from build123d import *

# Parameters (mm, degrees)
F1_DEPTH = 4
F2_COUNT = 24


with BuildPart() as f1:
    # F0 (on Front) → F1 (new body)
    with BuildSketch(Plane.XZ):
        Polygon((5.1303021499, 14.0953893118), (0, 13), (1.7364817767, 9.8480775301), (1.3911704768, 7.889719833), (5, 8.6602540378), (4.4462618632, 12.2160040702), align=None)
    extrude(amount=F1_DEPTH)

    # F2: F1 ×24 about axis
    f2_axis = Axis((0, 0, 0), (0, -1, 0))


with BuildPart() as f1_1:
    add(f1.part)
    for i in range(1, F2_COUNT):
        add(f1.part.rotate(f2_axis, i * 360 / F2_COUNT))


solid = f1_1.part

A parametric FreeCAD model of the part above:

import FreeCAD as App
import Part
import Sketcher
from FreeCAD import Vector
Q = App.Units.Quantity


def add_polygon(sketch, points):
    """Adds a closed chain of lines whose ends are joined by coincident constraints."""
    first, n = sketch.GeometryCount, len(points)
    for a, b in zip(points, points[1:] + points[:1]):
        sketch.addGeometry(Part.LineSegment(App.Vector(*a, 0), App.Vector(*b, 0)), False)
    for i in range(n):
        sketch.addConstraint(Sketcher.Constraint("Coincident", first + i, 2, first + (i + 1) % n, 1))

doc = App.newDocument("Part")
params = doc.addObject("Spreadsheet::Sheet", "Params")
for row, (alias, value) in enumerate([
    ("sketch1_length", "2 mm"),
    ("pad1_length", "4 mm"),
], start=1):
    params.set(f"A{row}", alias)
    params.set(f"B{row}", "=" + value)
    params.setAlias(f"B{row}", alias)

body = doc.addObject("PartDesign::Body", "Body")

# Sketch on XZ plane
sketch1 = doc.addObject("Sketcher::SketchObject", "Sketch")
body.addObject(sketch1)
sketch1.AttachmentSupport = (doc.XZ_Plane, [""])
sketch1.MapMode = "FlatFace"
add_polygon(sketch1, [(5.1, 14.1), (0, 13), (1.7, 9.8), (1.4, 7.9), (5, 8.7), (4.4, 12.2)])  # lines 0-5
sketch1.addConstraint([
    Sketcher.Constraint("PointOnObject", 0, 2, -2),
    Sketcher.Constraint("Parallel", 0, 3),
    Sketcher.Constraint("Equal", 1, 4),
    Sketcher.Constraint("Angle", 2, Q("-100 deg")),
    Sketcher.Constraint("Angle", 5, Q("70 deg")),
    Sketcher.Constraint("Distance", 5, Q("2 mm")),
    Sketcher.Constraint("DistanceY", -1, 1, 0, 2, Q("13 mm")),
    Sketcher.Constraint("DistanceX", -1, 1, 3, 2, Q("5 mm")),
    Sketcher.Constraint("Distance", 0, Q("5.245939 mm")),
    Sketcher.Constraint("Distance", 1, Q("3.598609 mm")),
    Sketcher.Constraint("Distance", 2, Q("1.988569 mm")),
    Sketcher.Constraint("DistanceX", -1, 1, 1, 2, Q("1.736482 mm")),
])
sketch1.setExpression("Constraints[11]", "Params.sketch1_length")
pad1 = doc.addObject("PartDesign::Pad", "Pad")
body.addObject(pad1)
pad1.Profile = sketch1
pad1.setExpression("Length", "Params.pad1_length")
body2 = doc.addObject("PartDesign::Body", "Body001")
doc.recompute()

body2.BaseFeature = body
doc.recompute()

body3 = doc.addObject("PartDesign::Body", "Body002")
body3.BaseFeature = body
body3.Placement = App.Placement(Vector(0, 0, 0), App.Rotation(Vector(0, -1, 0), 15))
boolean = doc.addObject("PartDesign::Boolean", "Boolean")
body2.addObject(boolean)
boolean.Type = "Fuse"
boolean.addObjects([body3])
doc.recompute()

body4 = doc.addObject("PartDesign::Body", "Body003")
body4.BaseFeature = body
body4.Placement = App.Placement(Vector(0, 0, 0), App.Rotation(Vector(0, -1, 0), 30))
boolean2 = doc.addObject("PartDesign::Boolean", "Boolean001")
body2.addObject(boolean2)
boolean2.Type = "Fuse"
boolean2.addObjects([body4])
doc.recompute()

body5 = doc.addObject("PartDesign::Body", "Body004")
body5.BaseFeature = body
body5.Placement = App.Placement(Vector(0, 0, 0), App.Rotation(Vector(0, -1, 0), 45))
boolean3 = doc.addObject("PartDesign::Boolean", "Boolean002")
body2.addObject(boolean3)
boolean3.Type = "Fuse"
boolean3.addObjects([body5])
doc.recompute()

body6 = doc.addObject("PartDesign::Body", "Body005")
body6.BaseFeature = body
body6.Placement = App.Placement(Vector(0, 0, 0), App.Rotation(Vector(0, -1, 0), 60))
boolean4 = doc.addObject("PartDesign::Boolean", "Boolean003")
body2.addObject(boolean4)
boolean4.Type = "Fuse"
boolean4.addObjects([body6])
doc.recompute()

body7 = doc.addObject("PartDesign::Body", "Body006")
body7.BaseFeature = body
body7.Placement = App.Placement(Vector(0, 0, 0), App.Rotation(Vector(0, -1, 0), 75))
boolean5 = doc.addObject("PartDesign::Boolean", "Boolean004")
body2.addObject(boolean5)
boolean5.Type = "Fuse"
boolean5.addObjects([body7])
doc.recompute()

body8 = doc.addObject("PartDesign::Body", "Body007")
body8.BaseFeature = body
body8.Placement = App.Placement(Vector(0, 0, 0), App.Rotation(Vector(0, -1, 0), 90))
boolean6 = doc.addObject("PartDesign::Boolean", "Boolean005")
body2.addObject(boolean6)
boolean6.Type = "Fuse"
boolean6.addObjects([body8])
doc.recompute()

body9 = doc.addObject("PartDesign::Body", "Body008")
body9.BaseFeature = body
body9.Placement = App.Placement(Vector(0, 0, 0), App.Rotation(Vector(0, -1, 0), 105))
boolean7 = doc.addObject("PartDesign::Boolean", "Boolean006")
body2.addObject(boolean7)
boolean7.Type = "Fuse"
boolean7.addObjects([body9])
doc.recompute()

body10 = doc.addObject("PartDesign::Body", "Body009")
body10.BaseFeature = body
body10.Placement = App.Placement(Vector(0, 0, 0), App.Rotation(Vector(0, -1, 0), 120))
boolean8 = doc.addObject("PartDesign::Boolean", "Boolean007")
body2.addObject(boolean8)
boolean8.Type = "Fuse"
boolean8.addObjects([body10])
doc.recompute()

body11 = doc.addObject("PartDesign::Body", "Body010")
body11.BaseFeature = body
body11.Placement = App.Placement(Vector(0, 0, 0), App.Rotation(Vector(0, -1, 0), 135))
boolean9 = doc.addObject("PartDesign::Boolean", "Boolean008")
body2.addObject(boolean9)
boolean9.Type = "Fuse"
boolean9.addObjects([body11])
doc.recompute()

body12 = doc.addObject("PartDesign::Body", "Body011")
body12.BaseFeature = body
body12.Placement = App.Placement(Vector(0, 0, 0), App.Rotation(Vector(0, -1, 0), 150))
boolean10 = doc.addObject("PartDesign::Boolean", "Boolean009")
body2.addObject(boolean10)
boolean10.Type = "Fuse"
boolean10.addObjects([body12])
doc.recompute()

body13 = doc.addObject("PartDesign::Body", "Body012")
body13.BaseFeature = body
body13.Placement = App.Placement(Vector(0, 0, 0), App.Rotation(Vector(0, -1, 0), 165))
boolean11 = doc.addObject("PartDesign::Boolean", "Boolean010")
body2.addObject(boolean11)
boolean11.Type = "Fuse"
boolean11.addObjects([body13])
doc.recompute()

body14 = doc.addObject("PartDesign::Body", "Body013")
body14.BaseFeature = body
body14.Placement = App.Placement(Vector(0, 0, 0), App.Rotation(Vector(0, -1, 0), 180))
boolean12 = doc.addObject("PartDesign::Boolean", "Boolean011")
body2.addObject(boolean12)
boolean12.Type = "Fuse"
boolean12.addObjects([body14])
doc.recompute()

body15 = doc.addObject("PartDesign::Body", "Body014")
body15.BaseFeature = body
body15.Placement = App.Placement(Vector(0, 0, 0), App.Rotation(Vector(0, -1, 0), 195))
boolean13 = doc.addObject("PartDesign::Boolean", "Boolean012")
body2.addObject(boolean13)
boolean13.Type = "Fuse"
boolean13.addObjects([body15])
doc.recompute()

body16 = doc.addObject("PartDesign::Body", "Body015")
body16.BaseFeature = body
body16.Placement = App.Placement(Vector(0, 0, 0), App.Rotation(Vector(0, -1, 0), 210))
boolean14 = doc.addObject("PartDesign::Boolean", "Boolean013")
body2.addObject(boolean14)
boolean14.Type = "Fuse"
boolean14.addObjects([body16])
doc.recompute()

body17 = doc.addObject("PartDesign::Body", "Body016")
body17.BaseFeature = body
body17.Placement = App.Placement(Vector(0, 0, 0), App.Rotation(Vector(0, -1, 0), 225))
boolean15 = doc.addObject("PartDesign::Boolean", "Boolean014")
body2.addObject(boolean15)
boolean15.Type = "Fuse"
boolean15.addObjects([body17])
doc.recompute()

body18 = doc.addObject("PartDesign::Body", "Body017")
body18.BaseFeature = body
body18.Placement = App.Placement(Vector(0, 0, 0), App.Rotation(Vector(0, -1, 0), 240))
boolean16 = doc.addObject("PartDesign::Boolean", "Boolean015")
body2.addObject(boolean16)
boolean16.Type = "Fuse"
boolean16.addObjects([body18])
doc.recompute()

body19 = doc.addObject("PartDesign::Body", "Body018")
body19.BaseFeature = body
body19.Placement = App.Placement(Vector(0, 0, 0), App.Rotation(Vector(0, -1, 0), 255))
boolean17 = doc.addObject("PartDesign::Boolean", "Boolean016")
body2.addObject(boolean17)
boolean17.Type = "Fuse"
boolean17.addObjects([body19])
doc.recompute()

body20 = doc.addObject("PartDesign::Body", "Body019")
body20.BaseFeature = body
body20.Placement = App.Placement(Vector(0, 0, 0), App.Rotation(Vector(0, -1, 0), 270))
boolean18 = doc.addObject("PartDesign::Boolean", "Boolean017")
body2.addObject(boolean18)
boolean18.Type = "Fuse"
boolean18.addObjects([body20])
doc.recompute()

body21 = doc.addObject("PartDesign::Body", "Body020")
body21.BaseFeature = body
body21.Placement = App.Placement(Vector(0, 0, 0), App.Rotation(Vector(0, -1, 0), 285))
boolean19 = doc.addObject("PartDesign::Boolean", "Boolean018")
body2.addObject(boolean19)
boolean19.Type = "Fuse"
boolean19.addObjects([body21])
doc.recompute()

body22 = doc.addObject("PartDesign::Body", "Body021")
body22.BaseFeature = body
body22.Placement = App.Placement(Vector(0, 0, 0), App.Rotation(Vector(0, -1, 0), 300))
boolean20 = doc.addObject("PartDesign::Boolean", "Boolean019")
body2.addObject(boolean20)
boolean20.Type = "Fuse"
boolean20.addObjects([body22])
doc.recompute()

body23 = doc.addObject("PartDesign::Body", "Body022")
body23.BaseFeature = body
body23.Placement = App.Placement(Vector(0, 0, 0), App.Rotation(Vector(0, -1, 0), 315))
boolean21 = doc.addObject("PartDesign::Boolean", "Boolean020")
body2.addObject(boolean21)
boolean21.Type = "Fuse"
boolean21.addObjects([body23])
doc.recompute()

body24 = doc.addObject("PartDesign::Body", "Body023")
body24.BaseFeature = body
body24.Placement = App.Placement(Vector(0, 0, 0), App.Rotation(Vector(0, -1, 0), 330))
boolean22 = doc.addObject("PartDesign::Boolean", "Boolean021")
body2.addObject(boolean22)
boolean22.Type = "Fuse"
boolean22.addObjects([body24])
doc.recompute()

body.Placement = App.Placement(Vector(0, 0, 0), App.Rotation(Vector(0, -1, 0), 345))
boolean23 = doc.addObject("PartDesign::Boolean", "Boolean022")
body2.addObject(boolean23)
boolean23.Type = "Fuse"
boolean23.addObjects([body])

doc.recompute()
